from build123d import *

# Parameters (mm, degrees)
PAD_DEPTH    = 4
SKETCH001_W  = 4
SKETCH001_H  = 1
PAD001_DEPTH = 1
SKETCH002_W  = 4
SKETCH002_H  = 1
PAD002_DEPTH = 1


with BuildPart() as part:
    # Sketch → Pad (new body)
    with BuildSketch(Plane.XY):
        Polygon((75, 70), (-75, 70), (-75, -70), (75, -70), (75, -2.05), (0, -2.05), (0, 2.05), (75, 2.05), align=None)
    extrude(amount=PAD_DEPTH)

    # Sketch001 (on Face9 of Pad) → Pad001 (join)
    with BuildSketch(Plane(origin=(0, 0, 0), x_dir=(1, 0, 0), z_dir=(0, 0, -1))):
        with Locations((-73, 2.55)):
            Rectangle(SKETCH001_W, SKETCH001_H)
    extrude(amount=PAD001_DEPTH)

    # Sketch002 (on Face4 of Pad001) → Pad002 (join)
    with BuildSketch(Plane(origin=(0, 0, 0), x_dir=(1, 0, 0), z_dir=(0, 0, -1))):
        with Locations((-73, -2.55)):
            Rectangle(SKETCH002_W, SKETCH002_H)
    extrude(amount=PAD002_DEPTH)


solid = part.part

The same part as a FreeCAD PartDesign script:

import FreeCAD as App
import Part
import Sketcher
from FreeCAD import Vector
Q = App.Units.Quantity


def add_polygon(sketch, points):
    """Adds a closed chain of lines whose ends are joined by coincident constraints."""
    first, n = sketch.GeometryCount, len(points)
    for a, b in zip(points, points[1:] + points[:1]):
        sketch.addGeometry(Part.LineSegment(App.Vector(*a, 0), App.Vector(*b, 0)), False)
    for i in range(n):
        sketch.addConstraint(Sketcher.Constraint("Coincident", first + i, 2, first + (i + 1) % n, 1))

doc = App.newDocument("Part")
body = doc.addObject("PartDesign::Body", "Body")

# Sketch on XY plane
sketch1 = doc.addObject("Sketcher::SketchObject", "Sketch")
body.addObject(sketch1)
sketch1.AttachmentSupport = (doc.XY_Plane, [""])
sketch1.MapMode = "FlatFace"
add_polygon(sketch1, [(75, 70), (-75, 70), (-75, -70), (75, -70), (75, -2.05), (0, -2.05), (0, 2.05), (75, 2.05)])  # lines 0-7
sketch1.addConstraint(Sketcher.Constraint("Horizontal", 0))
sketch1.addConstraint(Sketcher.Constraint("Vertical", 1))
sketch1.addConstraint(Sketcher.Constraint("Horizontal", 2))
sketch1.addConstraint(Sketcher.Constraint("Vertical", 3))
sketch1.addConstraint(Sketcher.Constraint("Horizontal", 4))
sketch1.addConstraint(Sketcher.Constraint("Vertical", 5))
sketch1.addConstraint(Sketcher.Constraint("Horizontal", 6))
sketch1.addConstraint(Sketcher.Constraint("Vertical", 7))
sketch1.addConstraint(Sketcher.Constraint("Symmetric", 0, 2, 2, 2, -1, 1))
sketch1.addConstraint(Sketcher.Constraint("Symmetric", 4, 2, 5, 2, -1, 1))
sketch1.addConstraint(Sketcher.Constraint("Vertical", 3, 2, 6, 2))
sketch1.addConstraint(Sketcher.Constraint("DistanceX", 0, 2, 0, 1, Q("150 mm")))
sketch1.addConstraint(Sketcher.Constraint("DistanceY", 1, 2, 1, 1, Q("140 mm")))
sketch1.addConstraint(Sketcher.Constraint("DistanceY", 5, 1, 5, 2, Q("4.1 mm")))
pad1 = doc.addObject("PartDesign::Pad", "Pad")
body.addObject(pad1)
pad1.Profile = sketch1
pad1.Length = 4

# Sketch on XY plane
sketch2 = doc.addObject("Sketcher::SketchObject", "Sketch001")
body.addObject(sketch2)
sketch2.AttachmentSupport = (doc.XY_Plane, [""])
sketch2.MapMode = "FlatFace"
add_polygon(sketch2, [(-75, -3.05), (-75, -2.05), (-71, -2.05), (-71, -3.05)])  # lines 0-3
sketch2.addConstraint(Sketcher.Constraint("Vertical", 0))
sketch2.addConstraint(Sketcher.Constraint("Horizontal", 1))
sketch2.addConstraint(Sketcher.Constraint("Vertical", 2))
sketch2.addConstraint(Sketcher.Constraint("Horizontal", 3))
sketch2.addConstraint(Sketcher.Constraint("DistanceX", 1, 1, 1, 2, Q("4 mm")))
sketch2.addConstraint(Sketcher.Constraint("DistanceY", 0, 1, 0, 2, Q("1 mm")))
sketch2.addConstraint(Sketcher.Constraint("DistanceX", 0, 2, -1, 1, Q("75 mm")))
sketch2.addConstraint(Sketcher.Constraint("DistanceY", 0, 2, -1, 1, Q("2.05 mm")))
pad2 = doc.addObject("PartDesign::Pad", "Pad001")
body.addObject(pad2)
pad2.Profile = sketch2
pad2.Length = 1
pad2.Reversed = True

# Sketch on XY plane
sketch3 = doc.addObject("Sketcher::SketchObject", "Sketch002")
body.addObject(sketch3)
sketch3.AttachmentSupport = (doc.XY_Plane, [""])
sketch3.MapMode = "FlatFace"
add_polygon(sketch3, [(-75, 2.05), (-75, 3.05), (-71, 3.05), (-71, 2.05)])  # lines 0-3
sketch3.addConstraint(Sketcher.Constraint("Vertical", 0))
sketch3.addConstraint(Sketcher.Constraint("Horizontal", 1))
sketch3.addConstraint(Sketcher.Constraint("Vertical", 2))
sketch3.addConstraint(Sketcher.Constraint("Horizontal", 3))
sketch3.addConstraint(Sketcher.Constraint("DistanceX", 1, 1, 1, 2, Q("4 mm")))
sketch3.addConstraint(Sketcher.Constraint("DistanceY", 0, 1, 0, 2, Q("1 mm")))
sketch3.addConstraint(Sketcher.Constraint("DistanceX", 0, 2, -1, 1, Q("75 mm")))
sketch3.addConstraint(Sketcher.Constraint("DistanceY", -1, 1, 0, 2, Q("3.05 mm")))
pad3 = doc.addObject("PartDesign::Pad", "Pad002")
body.addObject(pad3)
pad3.Profile = sketch3
pad3.Length = 1
pad3.Reversed = True

doc.recompute()
